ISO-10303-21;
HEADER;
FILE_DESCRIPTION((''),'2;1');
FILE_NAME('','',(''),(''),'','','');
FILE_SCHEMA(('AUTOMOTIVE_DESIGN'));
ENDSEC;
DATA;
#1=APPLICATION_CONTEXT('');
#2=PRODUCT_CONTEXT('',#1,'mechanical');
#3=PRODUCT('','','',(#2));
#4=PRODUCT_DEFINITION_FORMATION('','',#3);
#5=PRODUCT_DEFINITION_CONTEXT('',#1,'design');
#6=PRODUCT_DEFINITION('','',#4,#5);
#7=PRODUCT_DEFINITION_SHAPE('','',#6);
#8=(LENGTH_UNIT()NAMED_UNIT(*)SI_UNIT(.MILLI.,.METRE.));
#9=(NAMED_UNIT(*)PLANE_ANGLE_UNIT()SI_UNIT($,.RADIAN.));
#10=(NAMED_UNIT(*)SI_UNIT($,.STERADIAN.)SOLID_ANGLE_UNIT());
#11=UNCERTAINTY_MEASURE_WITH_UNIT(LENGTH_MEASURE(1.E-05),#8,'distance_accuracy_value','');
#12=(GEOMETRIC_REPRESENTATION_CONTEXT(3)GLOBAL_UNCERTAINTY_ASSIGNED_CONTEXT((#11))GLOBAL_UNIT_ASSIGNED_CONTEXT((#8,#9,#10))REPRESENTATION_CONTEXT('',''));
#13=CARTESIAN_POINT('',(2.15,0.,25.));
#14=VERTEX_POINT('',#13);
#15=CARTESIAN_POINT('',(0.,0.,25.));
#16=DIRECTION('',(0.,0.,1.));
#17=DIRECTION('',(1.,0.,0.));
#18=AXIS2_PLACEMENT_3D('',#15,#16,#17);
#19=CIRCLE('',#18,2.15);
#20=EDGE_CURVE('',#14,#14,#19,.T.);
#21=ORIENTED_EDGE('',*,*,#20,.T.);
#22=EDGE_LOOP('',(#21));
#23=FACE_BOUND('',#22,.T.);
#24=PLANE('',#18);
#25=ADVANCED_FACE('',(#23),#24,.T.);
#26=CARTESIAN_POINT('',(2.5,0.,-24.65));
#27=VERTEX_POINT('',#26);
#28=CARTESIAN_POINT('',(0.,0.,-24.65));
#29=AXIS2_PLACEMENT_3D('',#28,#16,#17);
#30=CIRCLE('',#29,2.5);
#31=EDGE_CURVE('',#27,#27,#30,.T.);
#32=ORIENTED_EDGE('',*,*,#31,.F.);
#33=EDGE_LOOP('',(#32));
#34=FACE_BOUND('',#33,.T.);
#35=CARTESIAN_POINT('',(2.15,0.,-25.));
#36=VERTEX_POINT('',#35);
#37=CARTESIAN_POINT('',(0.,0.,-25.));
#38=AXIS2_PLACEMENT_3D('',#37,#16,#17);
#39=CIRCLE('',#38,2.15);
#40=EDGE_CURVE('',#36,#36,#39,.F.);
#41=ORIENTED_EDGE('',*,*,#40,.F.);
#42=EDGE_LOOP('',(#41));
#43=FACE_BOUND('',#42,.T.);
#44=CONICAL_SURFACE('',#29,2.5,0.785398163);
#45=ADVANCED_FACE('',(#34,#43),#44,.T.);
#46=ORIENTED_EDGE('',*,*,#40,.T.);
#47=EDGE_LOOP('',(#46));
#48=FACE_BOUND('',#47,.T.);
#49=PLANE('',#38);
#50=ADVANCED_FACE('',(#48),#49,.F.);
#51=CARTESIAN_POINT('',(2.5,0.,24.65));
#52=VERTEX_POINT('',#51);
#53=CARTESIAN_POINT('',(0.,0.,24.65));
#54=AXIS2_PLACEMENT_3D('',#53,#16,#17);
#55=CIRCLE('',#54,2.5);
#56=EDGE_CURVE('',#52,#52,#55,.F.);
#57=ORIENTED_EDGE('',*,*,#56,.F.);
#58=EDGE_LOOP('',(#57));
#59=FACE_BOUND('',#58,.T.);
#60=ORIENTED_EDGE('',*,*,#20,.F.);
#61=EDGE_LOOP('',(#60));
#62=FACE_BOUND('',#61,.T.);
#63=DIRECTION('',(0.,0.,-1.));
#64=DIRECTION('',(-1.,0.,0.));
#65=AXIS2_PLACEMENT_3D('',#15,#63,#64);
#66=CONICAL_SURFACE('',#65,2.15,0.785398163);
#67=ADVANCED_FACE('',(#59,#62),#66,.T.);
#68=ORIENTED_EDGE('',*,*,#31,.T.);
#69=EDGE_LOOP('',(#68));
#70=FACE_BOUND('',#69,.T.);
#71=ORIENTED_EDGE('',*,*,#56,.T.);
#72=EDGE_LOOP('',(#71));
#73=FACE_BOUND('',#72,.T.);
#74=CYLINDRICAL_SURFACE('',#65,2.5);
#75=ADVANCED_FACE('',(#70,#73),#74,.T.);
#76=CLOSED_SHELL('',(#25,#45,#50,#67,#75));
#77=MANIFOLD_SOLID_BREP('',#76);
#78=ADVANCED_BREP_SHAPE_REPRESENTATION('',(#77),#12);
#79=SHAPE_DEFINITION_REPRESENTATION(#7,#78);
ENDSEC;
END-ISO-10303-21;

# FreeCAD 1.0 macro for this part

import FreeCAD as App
import Part
import Sketcher

V = App.Vector
Q = App.Units.Quantity


def edges_at(feature, points):
    """Names of the edges that pass closest to the given points."""
    edges = feature.Shape.Edges
    near = lambda p: min(range(len(edges)), key=lambda i: edges[i].distToShape(Part.Vertex(*p))[0])
    return sorted({f"Edge{near(p) + 1}" for p in points})

doc = App.newDocument("Part")
body = doc.addObject("PartDesign::Body", "Body")

# Sketch on XY plane
sketch1 = doc.addObject("Sketcher::SketchObject", "Sketch")
body.addObject(sketch1)
sketch1.AttachmentSupport = (doc.XY_Plane, [""])
sketch1.MapMode = "FlatFace"
sketch1.addGeometry(Part.Circle(V(0, 0, 0), V(0, 0, 1), 2.5), False)
sketch1.addConstraint([
    Sketcher.Constraint("Coincident", 0, 3, -1, 1),
    Sketcher.Constraint("Diameter", 0, Q("5 mm")),
])
pad1 = doc.addObject("PartDesign::Pad", "Pad")
body.addObject(pad1)
pad1.Profile = sketch1
pad1.Type = "TwoLengths"
pad1.Length = 25
pad1.Length2 = 25
doc.recompute()

chamfer = doc.addObject("PartDesign::Chamfer", "Chamfer")
body.addObject(chamfer)
chamfer.Base = (pad1, edges_at(pad1, [(-2.5, 0, -25), (-2.5, 0, 25)]))
chamfer.Size = 0.35

doc.recompute()
